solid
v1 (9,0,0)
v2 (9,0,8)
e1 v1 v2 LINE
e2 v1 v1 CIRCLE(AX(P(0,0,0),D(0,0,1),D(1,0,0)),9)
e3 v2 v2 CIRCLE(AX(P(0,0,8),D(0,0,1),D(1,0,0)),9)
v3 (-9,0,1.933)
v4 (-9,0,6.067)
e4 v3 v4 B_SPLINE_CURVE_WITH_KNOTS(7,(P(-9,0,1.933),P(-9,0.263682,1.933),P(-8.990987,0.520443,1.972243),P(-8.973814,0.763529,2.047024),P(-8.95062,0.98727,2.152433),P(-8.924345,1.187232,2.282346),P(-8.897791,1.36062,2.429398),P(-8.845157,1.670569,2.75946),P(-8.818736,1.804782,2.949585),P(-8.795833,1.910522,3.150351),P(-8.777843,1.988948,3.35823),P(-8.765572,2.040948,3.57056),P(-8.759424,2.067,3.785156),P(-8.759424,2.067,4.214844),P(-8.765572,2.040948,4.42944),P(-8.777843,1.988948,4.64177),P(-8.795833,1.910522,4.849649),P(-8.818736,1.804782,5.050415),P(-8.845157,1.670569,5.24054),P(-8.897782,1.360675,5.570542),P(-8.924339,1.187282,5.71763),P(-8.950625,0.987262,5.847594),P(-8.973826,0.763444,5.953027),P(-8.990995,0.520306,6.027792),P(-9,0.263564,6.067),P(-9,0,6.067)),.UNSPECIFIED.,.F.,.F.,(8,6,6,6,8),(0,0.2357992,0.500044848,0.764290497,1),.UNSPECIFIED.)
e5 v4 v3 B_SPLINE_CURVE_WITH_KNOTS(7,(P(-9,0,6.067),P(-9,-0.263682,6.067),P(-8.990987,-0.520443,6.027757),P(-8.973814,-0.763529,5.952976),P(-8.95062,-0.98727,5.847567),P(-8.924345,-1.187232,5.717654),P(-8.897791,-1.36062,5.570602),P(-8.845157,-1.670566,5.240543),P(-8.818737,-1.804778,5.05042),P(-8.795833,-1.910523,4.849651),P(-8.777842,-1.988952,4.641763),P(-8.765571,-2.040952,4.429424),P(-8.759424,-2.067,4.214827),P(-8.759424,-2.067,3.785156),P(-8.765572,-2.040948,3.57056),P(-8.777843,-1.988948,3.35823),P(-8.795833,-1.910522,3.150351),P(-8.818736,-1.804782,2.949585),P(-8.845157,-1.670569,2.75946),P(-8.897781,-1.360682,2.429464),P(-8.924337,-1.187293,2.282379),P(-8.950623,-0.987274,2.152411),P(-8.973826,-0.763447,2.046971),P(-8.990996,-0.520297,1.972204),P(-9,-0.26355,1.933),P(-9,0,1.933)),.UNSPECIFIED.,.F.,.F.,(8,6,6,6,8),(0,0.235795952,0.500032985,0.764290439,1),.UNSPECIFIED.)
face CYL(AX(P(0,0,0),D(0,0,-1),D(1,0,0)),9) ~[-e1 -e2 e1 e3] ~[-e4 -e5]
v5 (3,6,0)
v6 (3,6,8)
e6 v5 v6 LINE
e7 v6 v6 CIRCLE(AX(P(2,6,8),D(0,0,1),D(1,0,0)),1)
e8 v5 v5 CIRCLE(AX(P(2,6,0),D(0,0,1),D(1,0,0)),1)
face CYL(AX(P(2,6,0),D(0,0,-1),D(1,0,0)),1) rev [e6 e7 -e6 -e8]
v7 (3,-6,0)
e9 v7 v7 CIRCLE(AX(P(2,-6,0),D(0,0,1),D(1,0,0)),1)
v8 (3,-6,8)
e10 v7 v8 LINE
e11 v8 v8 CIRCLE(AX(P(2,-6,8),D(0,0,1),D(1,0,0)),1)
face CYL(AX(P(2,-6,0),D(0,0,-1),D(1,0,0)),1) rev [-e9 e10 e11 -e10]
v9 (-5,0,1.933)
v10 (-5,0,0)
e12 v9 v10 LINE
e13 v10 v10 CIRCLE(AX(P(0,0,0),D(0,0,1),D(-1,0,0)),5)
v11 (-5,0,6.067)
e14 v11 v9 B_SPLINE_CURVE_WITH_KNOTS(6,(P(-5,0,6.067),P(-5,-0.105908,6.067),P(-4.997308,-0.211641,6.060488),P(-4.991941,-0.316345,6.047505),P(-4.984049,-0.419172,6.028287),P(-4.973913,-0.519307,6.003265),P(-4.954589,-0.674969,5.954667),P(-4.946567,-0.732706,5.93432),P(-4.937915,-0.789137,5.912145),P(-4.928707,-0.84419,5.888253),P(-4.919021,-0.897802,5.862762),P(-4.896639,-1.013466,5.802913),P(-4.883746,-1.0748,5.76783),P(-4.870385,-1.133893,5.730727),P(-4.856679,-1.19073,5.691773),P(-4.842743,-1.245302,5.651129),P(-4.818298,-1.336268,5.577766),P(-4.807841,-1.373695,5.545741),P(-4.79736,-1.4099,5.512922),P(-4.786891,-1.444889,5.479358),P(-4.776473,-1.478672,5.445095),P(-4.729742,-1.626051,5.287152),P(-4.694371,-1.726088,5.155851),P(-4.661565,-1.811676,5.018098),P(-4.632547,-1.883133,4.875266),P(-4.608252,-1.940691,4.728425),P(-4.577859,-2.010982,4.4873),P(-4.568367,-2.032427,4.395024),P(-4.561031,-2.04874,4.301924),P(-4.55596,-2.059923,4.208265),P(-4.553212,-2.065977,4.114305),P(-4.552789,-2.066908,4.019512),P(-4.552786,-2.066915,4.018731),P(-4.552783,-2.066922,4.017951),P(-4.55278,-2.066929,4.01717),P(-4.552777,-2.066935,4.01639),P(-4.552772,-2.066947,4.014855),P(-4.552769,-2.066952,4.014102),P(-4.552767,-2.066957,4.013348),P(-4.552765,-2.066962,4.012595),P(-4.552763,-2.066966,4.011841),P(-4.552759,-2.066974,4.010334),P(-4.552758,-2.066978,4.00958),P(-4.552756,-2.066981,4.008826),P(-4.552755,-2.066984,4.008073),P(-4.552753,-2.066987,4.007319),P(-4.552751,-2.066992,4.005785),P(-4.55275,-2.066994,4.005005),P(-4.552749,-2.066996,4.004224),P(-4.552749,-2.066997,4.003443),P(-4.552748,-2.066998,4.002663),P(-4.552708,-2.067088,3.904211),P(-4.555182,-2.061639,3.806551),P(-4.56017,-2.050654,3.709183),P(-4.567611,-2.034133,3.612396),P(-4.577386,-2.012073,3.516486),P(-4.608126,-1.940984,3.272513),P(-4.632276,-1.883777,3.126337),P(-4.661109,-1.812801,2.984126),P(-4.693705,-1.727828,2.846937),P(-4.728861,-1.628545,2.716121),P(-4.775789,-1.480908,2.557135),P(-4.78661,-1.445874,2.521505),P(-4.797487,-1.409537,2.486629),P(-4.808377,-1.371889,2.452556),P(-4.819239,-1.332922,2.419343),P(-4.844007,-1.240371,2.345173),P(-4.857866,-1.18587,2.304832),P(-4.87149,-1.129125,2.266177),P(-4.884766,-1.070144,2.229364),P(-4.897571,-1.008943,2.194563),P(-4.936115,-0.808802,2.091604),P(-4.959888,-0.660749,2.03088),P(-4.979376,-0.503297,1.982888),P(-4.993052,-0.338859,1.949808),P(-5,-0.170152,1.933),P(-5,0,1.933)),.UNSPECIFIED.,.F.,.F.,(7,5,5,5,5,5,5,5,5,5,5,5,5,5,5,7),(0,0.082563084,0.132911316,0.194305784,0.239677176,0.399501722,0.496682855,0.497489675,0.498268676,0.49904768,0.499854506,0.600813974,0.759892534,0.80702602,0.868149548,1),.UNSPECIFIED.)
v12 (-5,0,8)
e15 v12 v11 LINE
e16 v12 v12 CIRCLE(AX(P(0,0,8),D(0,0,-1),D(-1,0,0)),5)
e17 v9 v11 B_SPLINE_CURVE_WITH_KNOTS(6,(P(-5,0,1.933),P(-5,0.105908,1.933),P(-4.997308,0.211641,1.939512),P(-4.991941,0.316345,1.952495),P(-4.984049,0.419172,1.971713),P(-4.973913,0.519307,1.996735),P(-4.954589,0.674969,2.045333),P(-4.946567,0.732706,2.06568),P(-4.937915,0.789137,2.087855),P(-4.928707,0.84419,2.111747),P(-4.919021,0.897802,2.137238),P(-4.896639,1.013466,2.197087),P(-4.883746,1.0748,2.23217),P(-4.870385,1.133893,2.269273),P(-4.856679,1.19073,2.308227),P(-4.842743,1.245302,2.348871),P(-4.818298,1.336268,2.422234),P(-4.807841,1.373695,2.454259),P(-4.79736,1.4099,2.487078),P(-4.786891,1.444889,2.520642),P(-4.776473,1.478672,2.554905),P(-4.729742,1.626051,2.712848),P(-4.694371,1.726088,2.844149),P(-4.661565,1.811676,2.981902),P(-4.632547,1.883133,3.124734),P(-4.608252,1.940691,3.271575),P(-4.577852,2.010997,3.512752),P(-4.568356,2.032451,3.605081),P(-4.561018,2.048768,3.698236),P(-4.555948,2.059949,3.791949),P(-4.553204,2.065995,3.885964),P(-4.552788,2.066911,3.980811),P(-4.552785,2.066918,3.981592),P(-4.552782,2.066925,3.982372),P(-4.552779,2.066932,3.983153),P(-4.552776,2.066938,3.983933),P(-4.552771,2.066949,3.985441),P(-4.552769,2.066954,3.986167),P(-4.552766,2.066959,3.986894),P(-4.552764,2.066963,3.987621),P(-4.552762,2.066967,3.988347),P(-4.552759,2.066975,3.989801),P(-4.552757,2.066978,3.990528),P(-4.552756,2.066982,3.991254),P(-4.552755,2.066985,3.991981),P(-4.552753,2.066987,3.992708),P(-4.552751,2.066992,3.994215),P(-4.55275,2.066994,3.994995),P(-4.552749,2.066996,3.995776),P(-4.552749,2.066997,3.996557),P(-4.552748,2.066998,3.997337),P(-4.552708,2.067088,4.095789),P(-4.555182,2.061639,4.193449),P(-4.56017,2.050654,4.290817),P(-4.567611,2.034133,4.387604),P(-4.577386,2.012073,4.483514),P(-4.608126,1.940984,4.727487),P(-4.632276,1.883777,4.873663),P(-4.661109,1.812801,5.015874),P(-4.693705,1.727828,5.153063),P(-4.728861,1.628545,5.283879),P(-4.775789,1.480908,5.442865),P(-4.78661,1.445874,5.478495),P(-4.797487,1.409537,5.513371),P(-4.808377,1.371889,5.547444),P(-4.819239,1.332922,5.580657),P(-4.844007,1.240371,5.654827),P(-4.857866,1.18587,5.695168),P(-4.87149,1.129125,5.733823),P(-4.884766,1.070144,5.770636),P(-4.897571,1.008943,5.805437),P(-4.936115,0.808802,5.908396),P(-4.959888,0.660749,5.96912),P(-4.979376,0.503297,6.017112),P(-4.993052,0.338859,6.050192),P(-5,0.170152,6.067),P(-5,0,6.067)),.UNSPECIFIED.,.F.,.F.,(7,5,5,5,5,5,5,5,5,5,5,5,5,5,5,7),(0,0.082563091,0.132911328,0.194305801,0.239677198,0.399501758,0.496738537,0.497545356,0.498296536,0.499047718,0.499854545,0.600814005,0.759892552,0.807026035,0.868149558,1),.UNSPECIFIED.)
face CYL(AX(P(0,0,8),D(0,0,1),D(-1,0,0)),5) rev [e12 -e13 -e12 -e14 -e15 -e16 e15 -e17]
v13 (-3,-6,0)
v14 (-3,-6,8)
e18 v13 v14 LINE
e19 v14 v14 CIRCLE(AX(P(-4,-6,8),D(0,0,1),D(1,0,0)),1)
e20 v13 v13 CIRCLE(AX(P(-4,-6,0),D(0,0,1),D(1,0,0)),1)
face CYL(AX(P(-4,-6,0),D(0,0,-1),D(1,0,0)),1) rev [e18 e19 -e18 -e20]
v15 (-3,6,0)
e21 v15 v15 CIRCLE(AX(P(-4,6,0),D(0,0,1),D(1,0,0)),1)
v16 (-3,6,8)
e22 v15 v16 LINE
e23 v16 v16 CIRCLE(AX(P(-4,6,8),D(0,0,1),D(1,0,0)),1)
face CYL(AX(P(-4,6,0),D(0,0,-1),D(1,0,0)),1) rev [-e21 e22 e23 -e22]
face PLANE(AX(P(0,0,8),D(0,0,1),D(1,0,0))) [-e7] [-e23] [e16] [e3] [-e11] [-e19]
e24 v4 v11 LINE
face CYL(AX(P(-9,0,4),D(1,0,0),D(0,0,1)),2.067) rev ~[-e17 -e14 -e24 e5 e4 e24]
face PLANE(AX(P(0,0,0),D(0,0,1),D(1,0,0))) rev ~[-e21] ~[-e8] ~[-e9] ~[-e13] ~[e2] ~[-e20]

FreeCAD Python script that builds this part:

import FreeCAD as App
import Part
import Sketcher

V = App.Vector
Q = App.Units.Quantity

doc = App.newDocument("Part")
body = doc.addObject("PartDesign::Body", "Body")

# Sketch on XY plane
sketch1 = body.newObject("Sketcher::SketchObject", "Sketch")
sketch1.AttachmentSupport = (doc.getObject("XY_Plane"), [""])
sketch1.MapMode = "FlatFace"
sketch1.addGeometry(Part.Circle(V(0, 0, 0), V(0, 0, 1), 9), False)
sketch1.addGeometry(Part.Circle(V(-4, -6, 0), V(0, 0, 1), 1), False)
sketch1.addGeometry(Part.Circle(V(2, -6, 0), V(0, 0, 1), 1), False)
sketch1.addGeometry(Part.Circle(V(-4, 6, 0), V(0, 0, 1), 1), False)
sketch1.addGeometry(Part.Circle(V(2, 6, 0), V(0, 0, 1), 1), False)
sketch1.addConstraint(Sketcher.Constraint("Coincident", 0, 3, -1, 1))
sketch1.addConstraint(Sketcher.Constraint("Equal", 1, 2))
sketch1.addConstraint(Sketcher.Constraint("Equal", 2, 3))
sketch1.addConstraint(Sketcher.Constraint("Equal", 3, 4))
sketch1.addConstraint(Sketcher.Constraint("Symmetric", 1, 3, 3, 3, -1))
sketch1.addConstraint(Sketcher.Constraint("Symmetric", 2, 3, 4, 3, -1))
sketch1.addConstraint(Sketcher.Constraint("Horizontal", 1, 3, 2, 3))
sketch1.addConstraint(Sketcher.Constraint("Diameter", 0, Q("18 mm")))
sketch1.addConstraint(Sketcher.Constraint("Diameter", 1, Q("2 mm")))
sketch1.addConstraint(Sketcher.Constraint("DistanceX", 1, 3, -1, 1, Q("4 mm")))
sketch1.addConstraint(Sketcher.Constraint("DistanceY", 1, 3, -1, 1, Q("6 mm")))
sketch1.addConstraint(Sketcher.Constraint("DistanceX", -1, 1, 2, 3, Q("2 mm")))
pad1 = body.newObject("PartDesign::Pad", "Pad")
pad1.Profile = sketch1
pad1.Length = 8

# Sketch on XY plane
sketch2 = body.newObject("Sketcher::SketchObject", "Sketch001")
sketch2.AttachmentSupport = (doc.getObject("XY_Plane"), [""])
sketch2.MapMode = "FlatFace"
sketch2.AttachmentOffset = App.Placement(V(0, 0, 8), App.Rotation())
sketch2.addGeometry(Part.Circle(V(0, 0, 0), V(0, 0, 1), 5), False)
sketch2.addConstraint(Sketcher.Constraint("Coincident", 0, 3, -1, 1))
sketch2.addConstraint(Sketcher.Constraint("Diameter", 0, Q("10 mm")))
pocket1 = body.newObject("PartDesign::Pocket", "Pocket")
pocket1.Profile = sketch2
pocket1.Length = 18

# Sketch on YZ plane
sketch3 = body.newObject("Sketcher::SketchObject", "Sketch002")
sketch3.AttachmentSupport = (doc.getObject("YZ_Plane"), [""])
sketch3.MapMode = "FlatFace"
sketch3.AttachmentOffset = App.Placement(V(0, 0, -9), App.Rotation())
sketch3.addGeometry(Part.Circle(V(0, 4, 0), V(0, 0, 1), 2.067), False)
sketch3.addConstraint(Sketcher.Constraint("PointOnObject", 0, 3, -2))
sketch3.addConstraint(Sketcher.Constraint("Diameter", 0, Q("4.134 mm")))
sketch3.addConstraint(Sketcher.Constraint("DistanceY", -1, 1, 0, 3, Q("4 mm")))
doc.recompute()
hole = body.newObject("PartDesign::Hole", "Hole")
hole.Profile = sketch3
hole.ThreadType = "None"
hole.Diameter = 4.134
hole.DepthType = "Dimension"
hole.Depth = 4.5
hole.DrillPoint = "Flat"
hole.Reversed = True

doc.recompute()
